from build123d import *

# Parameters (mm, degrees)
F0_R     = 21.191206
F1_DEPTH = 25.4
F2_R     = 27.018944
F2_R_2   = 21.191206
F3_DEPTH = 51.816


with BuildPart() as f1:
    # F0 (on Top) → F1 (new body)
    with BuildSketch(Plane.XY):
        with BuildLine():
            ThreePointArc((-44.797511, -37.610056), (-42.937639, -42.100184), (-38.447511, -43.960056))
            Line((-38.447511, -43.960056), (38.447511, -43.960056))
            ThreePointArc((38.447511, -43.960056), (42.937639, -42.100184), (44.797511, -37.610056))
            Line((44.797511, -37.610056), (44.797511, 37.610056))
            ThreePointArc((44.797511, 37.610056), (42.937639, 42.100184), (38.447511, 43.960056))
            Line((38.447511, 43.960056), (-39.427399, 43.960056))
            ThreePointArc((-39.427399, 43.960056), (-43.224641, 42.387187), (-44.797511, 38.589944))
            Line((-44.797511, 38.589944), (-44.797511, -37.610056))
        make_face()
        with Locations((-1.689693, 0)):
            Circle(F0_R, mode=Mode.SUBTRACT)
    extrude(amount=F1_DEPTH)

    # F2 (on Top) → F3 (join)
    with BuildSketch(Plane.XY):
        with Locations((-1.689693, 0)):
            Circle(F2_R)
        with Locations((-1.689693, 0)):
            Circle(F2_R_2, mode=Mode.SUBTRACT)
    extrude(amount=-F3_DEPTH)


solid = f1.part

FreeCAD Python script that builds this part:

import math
import FreeCAD as App
import Part
import Sketcher
Q = App.Units.Quantity

doc = App.newDocument("Part")
body = doc.addObject("PartDesign::Body", "Body")

sketch1 = body.newObject("Sketcher::SketchObject", "Sketch")
sketch1.AttachmentSupport = (doc.getObject("XY_Plane"), [""])
sketch1.MapMode = "FlatFace"
sketch1.addGeometry([
    Part.ArcOfCircle(Part.Circle(App.Vector(-38.447511, -37.610056, 0), App.Vector(0, 0, 1), 6.35), math.radians(-179.999998), math.radians(-90.000002)),
    Part.LineSegment(App.Vector(-38.447511, -43.960056, 0), App.Vector(38.447511, -43.960056, 0)),
    Part.ArcOfCircle(Part.Circle(App.Vector(38.447511, -37.610056, 0), App.Vector(0, 0, 1), 6.35), math.radians(-89.999998), math.radians(-0.000002)),
    Part.LineSegment(App.Vector(44.797511, -37.610056, 0), App.Vector(44.797511, 37.610056, 0)),
    Part.ArcOfCircle(Part.Circle(App.Vector(38.447511, 37.610056, 0), App.Vector(0, 0, 1), 6.35), math.radians(0.000002), math.radians(89.999998)),
    Part.LineSegment(App.Vector(38.447511, 43.960056, 0), App.Vector(-39.427399, 43.960056, 0)),
    Part.ArcOfCircle(Part.Circle(App.Vector(-39.427399, 38.589944, 0), App.Vector(0, 0, 1), 5.370112), math.radians(90.000004), math.radians(179.999996)),
    Part.LineSegment(App.Vector(-44.797511, 38.589944, 0), App.Vector(-44.797511, -37.610056, 0)),
    Part.Circle(App.Vector(-1.689693, 0, 0), App.Vector(0, 0, 1), 21.191206),
], False)
sketch1.addConstraint([
    Sketcher.Constraint("Tangent", 0, 2, 1, 1),
    Sketcher.Constraint("Tangent", 1, 2, 2, 1),
    Sketcher.Constraint("Tangent", 2, 2, 3, 1),
    Sketcher.Constraint("Tangent", 3, 2, 4, 1),
    Sketcher.Constraint("Tangent", 4, 2, 5, 1),
    Sketcher.Constraint("Tangent", 5, 2, 6, 1),
    Sketcher.Constraint("Tangent", 6, 2, 7, 1),
    Sketcher.Constraint("Tangent", 7, 2, 0, 1),
    Sketcher.Constraint("Horizontal", 1),
    Sketcher.Constraint("Vertical", 3),
    Sketcher.Constraint("Horizontal", 5),
    Sketcher.Constraint("Vertical", 7),
    Sketcher.Constraint("Equal", 0, 2),
    Sketcher.Constraint("Equal", 2, 4),
    Sketcher.Constraint("Symmetric", 0, 3, 4, 3, -1, 1),
    Sketcher.Constraint("PointOnObject", 8, 3, -1),
    Sketcher.Constraint("DistanceY", 7, 2, 7, 1, Q("3 in")),
    Sketcher.Constraint("Radius", 0, Q("0.25 in")),
    Sketcher.Constraint("Diameter", 8, Q("42.382412 mm")),
    Sketcher.Constraint("Radius", 6, Q("5.370112 mm")),
    Sketcher.Constraint("DistanceX", 1, 1, 1, 2, Q("76.895022 mm")),
    Sketcher.Constraint("DistanceX", 7, 2, 8, 3, Q("43.107818 mm")),
])
pad1 = body.newObject("PartDesign::Pad", "Pad")
pad1.Profile = sketch1
pad1.Length = Q("1 in")

sketch2 = body.newObject("Sketcher::SketchObject", "Sketch001")
sketch2.AttachmentSupport = (doc.getObject("XY_Plane"), [""])
sketch2.MapMode = "FlatFace"
sketch2.addGeometry([
    Part.Circle(App.Vector(-1.689693, 0, 0), App.Vector(0, 0, 1), 27.018944),
    Part.Circle(App.Vector(-1.689693, 0, 0), App.Vector(0, 0, 1), 21.191206),
], False)
sketch2.addConstraint([
    Sketcher.Constraint("Coincident", 1, 3, 0, 3),
    Sketcher.Constraint("PointOnObject", 0, 3, -1),
    Sketcher.Constraint("Diameter", 0, Q("54.037888 mm")),
    Sketcher.Constraint("Diameter", 1, Q("42.382412 mm")),
    Sketcher.Constraint("DistanceX", 0, 3, -1, 1, Q("1.689693 mm")),
])
pad2 = body.newObject("PartDesign::Pad", "Pad001")
pad2.Profile = sketch2
pad2.Length = Q("2.04 in")
pad2.Reversed = True

doc.recompute()
